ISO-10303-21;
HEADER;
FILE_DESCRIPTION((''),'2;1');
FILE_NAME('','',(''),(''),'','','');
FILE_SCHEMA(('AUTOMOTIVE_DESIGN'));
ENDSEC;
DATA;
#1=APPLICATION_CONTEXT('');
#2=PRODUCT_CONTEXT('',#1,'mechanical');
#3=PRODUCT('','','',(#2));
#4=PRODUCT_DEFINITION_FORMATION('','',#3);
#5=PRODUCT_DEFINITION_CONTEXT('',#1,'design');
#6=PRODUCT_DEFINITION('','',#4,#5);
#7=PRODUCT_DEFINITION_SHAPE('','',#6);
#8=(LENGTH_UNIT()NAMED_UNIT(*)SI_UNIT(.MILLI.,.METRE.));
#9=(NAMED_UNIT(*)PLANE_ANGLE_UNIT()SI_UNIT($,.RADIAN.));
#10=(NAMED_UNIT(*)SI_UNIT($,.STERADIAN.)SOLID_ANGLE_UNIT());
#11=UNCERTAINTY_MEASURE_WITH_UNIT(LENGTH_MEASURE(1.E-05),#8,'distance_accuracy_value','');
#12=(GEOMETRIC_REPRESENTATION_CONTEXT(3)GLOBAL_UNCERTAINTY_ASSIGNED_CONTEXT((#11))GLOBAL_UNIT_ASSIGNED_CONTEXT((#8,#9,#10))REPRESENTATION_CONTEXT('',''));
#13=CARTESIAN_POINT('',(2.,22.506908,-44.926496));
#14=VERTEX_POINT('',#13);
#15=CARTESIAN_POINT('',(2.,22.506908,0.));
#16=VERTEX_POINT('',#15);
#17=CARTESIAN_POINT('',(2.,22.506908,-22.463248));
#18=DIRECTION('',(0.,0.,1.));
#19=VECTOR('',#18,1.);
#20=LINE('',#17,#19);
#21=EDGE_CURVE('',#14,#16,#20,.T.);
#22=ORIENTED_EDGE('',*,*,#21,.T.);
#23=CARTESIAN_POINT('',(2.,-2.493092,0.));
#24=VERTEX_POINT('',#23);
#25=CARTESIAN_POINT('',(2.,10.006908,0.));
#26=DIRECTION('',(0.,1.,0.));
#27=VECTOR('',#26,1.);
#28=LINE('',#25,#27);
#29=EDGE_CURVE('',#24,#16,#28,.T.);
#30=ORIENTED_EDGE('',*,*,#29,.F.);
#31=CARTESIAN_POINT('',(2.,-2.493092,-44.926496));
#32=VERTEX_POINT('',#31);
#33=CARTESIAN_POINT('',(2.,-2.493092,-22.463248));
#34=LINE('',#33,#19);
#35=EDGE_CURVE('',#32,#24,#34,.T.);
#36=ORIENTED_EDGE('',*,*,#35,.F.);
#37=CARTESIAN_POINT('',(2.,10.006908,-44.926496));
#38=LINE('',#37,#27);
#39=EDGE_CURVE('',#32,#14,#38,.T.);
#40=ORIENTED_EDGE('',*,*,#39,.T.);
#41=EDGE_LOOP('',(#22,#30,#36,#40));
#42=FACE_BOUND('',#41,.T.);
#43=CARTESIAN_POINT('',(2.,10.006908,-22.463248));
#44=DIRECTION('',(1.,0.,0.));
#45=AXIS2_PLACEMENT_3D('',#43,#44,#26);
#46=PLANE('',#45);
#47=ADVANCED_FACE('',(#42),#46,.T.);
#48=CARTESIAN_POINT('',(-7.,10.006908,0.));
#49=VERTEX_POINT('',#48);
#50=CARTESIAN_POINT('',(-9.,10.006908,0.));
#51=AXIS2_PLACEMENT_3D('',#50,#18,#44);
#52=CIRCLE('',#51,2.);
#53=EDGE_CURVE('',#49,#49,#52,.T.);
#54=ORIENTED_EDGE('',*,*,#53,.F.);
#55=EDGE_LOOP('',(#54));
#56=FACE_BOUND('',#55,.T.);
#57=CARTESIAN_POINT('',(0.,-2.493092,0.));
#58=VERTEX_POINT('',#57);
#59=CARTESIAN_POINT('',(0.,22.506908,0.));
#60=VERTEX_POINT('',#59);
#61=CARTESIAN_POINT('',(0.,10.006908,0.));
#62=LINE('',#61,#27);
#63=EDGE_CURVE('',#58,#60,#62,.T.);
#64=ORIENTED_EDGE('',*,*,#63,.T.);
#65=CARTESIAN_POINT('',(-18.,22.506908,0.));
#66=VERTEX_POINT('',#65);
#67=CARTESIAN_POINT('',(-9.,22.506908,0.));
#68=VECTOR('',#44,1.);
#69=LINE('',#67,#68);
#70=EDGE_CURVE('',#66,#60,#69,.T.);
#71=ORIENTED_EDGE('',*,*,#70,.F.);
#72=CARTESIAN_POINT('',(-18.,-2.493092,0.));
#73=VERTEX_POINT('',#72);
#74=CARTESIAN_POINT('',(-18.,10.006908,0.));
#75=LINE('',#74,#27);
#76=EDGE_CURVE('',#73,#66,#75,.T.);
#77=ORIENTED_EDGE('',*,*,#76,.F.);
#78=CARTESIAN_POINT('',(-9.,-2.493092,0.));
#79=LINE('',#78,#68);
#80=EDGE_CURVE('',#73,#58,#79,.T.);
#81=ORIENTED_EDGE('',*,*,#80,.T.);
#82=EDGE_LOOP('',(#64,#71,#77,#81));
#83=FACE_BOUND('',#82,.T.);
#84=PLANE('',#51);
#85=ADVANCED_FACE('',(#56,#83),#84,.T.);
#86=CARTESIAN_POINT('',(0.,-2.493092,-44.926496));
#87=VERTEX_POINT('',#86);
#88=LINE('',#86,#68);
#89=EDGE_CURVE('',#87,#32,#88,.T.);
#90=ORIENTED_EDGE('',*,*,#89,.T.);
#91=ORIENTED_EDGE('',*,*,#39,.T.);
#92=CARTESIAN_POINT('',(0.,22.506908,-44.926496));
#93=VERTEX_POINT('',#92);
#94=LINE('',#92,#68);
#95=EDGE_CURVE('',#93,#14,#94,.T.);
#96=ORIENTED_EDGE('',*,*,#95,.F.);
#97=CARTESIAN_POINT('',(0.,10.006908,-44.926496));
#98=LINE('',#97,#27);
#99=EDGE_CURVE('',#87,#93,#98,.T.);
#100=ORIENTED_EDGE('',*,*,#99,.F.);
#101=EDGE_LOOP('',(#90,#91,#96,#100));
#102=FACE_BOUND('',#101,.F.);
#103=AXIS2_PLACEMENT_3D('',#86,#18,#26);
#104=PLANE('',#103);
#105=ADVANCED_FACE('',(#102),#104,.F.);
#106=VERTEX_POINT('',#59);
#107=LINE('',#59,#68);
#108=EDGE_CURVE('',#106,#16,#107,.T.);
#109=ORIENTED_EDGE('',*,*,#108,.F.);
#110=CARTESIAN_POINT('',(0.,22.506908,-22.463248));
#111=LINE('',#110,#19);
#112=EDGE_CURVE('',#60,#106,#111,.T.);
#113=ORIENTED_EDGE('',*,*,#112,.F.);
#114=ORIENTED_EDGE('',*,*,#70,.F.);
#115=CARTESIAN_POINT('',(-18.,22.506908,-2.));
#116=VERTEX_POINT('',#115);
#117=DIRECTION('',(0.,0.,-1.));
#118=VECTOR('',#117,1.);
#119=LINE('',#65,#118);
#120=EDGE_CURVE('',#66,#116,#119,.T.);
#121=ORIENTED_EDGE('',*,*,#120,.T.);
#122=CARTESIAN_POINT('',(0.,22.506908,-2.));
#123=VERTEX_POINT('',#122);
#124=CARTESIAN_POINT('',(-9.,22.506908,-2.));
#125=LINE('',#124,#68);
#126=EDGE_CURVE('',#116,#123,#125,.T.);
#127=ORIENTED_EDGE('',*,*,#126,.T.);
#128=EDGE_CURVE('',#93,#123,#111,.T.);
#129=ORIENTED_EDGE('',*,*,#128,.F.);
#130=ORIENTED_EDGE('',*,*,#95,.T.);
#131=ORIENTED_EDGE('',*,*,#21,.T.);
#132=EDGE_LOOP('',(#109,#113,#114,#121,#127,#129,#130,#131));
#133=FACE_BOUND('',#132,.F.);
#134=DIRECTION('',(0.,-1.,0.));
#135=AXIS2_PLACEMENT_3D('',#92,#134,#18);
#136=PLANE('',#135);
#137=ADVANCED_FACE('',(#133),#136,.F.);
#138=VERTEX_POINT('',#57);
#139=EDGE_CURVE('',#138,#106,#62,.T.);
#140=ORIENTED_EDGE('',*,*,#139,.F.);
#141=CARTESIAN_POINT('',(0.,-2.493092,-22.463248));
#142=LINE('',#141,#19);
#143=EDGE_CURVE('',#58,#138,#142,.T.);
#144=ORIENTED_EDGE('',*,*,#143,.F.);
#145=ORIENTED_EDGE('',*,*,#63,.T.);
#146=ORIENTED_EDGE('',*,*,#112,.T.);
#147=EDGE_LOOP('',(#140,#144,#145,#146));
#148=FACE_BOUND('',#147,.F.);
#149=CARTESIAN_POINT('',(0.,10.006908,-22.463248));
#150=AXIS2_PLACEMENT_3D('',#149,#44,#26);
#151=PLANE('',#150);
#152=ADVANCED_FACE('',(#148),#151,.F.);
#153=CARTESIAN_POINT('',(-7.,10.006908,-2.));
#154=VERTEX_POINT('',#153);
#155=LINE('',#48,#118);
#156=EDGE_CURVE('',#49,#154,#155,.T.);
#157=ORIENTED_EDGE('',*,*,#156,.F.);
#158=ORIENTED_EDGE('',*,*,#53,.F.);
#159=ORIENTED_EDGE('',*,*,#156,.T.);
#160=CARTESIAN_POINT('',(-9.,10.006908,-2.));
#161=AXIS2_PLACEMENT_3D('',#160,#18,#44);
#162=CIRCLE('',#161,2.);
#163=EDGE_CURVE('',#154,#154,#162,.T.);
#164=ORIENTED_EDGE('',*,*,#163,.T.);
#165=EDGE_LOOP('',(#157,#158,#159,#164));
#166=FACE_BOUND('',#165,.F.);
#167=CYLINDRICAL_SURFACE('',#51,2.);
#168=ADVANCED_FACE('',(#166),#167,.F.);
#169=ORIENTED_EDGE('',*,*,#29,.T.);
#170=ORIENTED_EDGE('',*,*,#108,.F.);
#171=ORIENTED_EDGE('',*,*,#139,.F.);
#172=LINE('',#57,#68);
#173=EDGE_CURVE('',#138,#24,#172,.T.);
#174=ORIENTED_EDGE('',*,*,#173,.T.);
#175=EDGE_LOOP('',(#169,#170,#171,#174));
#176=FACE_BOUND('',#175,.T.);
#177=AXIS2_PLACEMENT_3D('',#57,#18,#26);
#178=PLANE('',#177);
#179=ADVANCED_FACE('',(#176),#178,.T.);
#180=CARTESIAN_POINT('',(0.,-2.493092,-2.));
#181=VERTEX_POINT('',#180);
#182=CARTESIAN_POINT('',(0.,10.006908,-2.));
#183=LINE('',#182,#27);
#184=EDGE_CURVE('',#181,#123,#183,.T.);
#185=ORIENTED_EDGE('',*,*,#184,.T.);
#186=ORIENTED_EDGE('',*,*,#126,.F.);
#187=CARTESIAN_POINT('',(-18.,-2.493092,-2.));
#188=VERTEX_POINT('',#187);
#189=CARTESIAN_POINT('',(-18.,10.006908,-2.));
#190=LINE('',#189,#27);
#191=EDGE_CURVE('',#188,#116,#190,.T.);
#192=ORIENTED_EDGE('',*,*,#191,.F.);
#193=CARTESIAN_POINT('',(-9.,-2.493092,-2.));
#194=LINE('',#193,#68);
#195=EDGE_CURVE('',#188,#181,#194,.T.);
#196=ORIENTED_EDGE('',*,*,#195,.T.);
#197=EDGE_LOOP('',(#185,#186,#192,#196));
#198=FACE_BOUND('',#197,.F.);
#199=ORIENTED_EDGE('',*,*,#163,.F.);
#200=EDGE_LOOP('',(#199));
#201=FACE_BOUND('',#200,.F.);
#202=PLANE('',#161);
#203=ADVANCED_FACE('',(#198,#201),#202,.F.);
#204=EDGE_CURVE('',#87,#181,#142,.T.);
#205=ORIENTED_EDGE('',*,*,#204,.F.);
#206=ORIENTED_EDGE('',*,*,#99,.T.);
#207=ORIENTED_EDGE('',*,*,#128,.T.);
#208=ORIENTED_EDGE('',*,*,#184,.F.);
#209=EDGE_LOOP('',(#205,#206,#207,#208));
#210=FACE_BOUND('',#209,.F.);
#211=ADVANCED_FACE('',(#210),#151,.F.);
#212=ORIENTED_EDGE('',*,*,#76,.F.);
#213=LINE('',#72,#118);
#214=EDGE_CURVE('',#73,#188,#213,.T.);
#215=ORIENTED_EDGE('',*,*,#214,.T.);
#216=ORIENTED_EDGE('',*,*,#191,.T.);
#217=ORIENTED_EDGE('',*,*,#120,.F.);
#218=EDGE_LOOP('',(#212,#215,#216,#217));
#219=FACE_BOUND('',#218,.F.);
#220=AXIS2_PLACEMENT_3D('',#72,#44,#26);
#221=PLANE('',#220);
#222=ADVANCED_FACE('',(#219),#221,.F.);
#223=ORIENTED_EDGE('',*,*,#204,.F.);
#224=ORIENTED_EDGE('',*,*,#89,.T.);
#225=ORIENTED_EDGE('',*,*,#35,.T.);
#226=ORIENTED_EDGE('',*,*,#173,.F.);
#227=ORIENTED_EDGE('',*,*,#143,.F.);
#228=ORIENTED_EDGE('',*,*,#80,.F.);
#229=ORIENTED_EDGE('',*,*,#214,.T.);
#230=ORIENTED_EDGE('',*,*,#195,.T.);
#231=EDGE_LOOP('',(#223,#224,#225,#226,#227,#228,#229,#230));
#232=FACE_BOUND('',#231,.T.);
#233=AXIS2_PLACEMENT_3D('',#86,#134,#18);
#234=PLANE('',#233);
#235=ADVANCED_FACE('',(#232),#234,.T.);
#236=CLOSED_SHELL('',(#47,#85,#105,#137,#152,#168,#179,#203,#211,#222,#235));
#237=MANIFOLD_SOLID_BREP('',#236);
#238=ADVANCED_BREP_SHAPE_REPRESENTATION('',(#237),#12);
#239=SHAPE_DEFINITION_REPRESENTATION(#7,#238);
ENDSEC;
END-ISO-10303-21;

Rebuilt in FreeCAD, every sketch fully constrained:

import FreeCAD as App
import Part
import Sketcher

V = App.Vector


def add_polygon(sketch, points):
    """Adds a closed chain of lines whose ends are joined by coincident constraints."""
    first, n = sketch.GeometryCount, len(points)
    for a, b in zip(points, points[1:] + points[:1]):
        sketch.addGeometry(Part.LineSegment(App.Vector(*a, 0), App.Vector(*b, 0)), False)
    for i in range(n):
        sketch.addConstraint(Sketcher.Constraint("Coincident", first + i, 2, first + (i + 1) % n, 1))

doc = App.newDocument("Part")
body = doc.addObject("PartDesign::Body", "Body")

sketch1 = body.newObject("Sketcher::SketchObject", "Sketch")
sketch1.AttachmentSupport = (doc.getObject("XY_Plane"), [""])
sketch1.MapMode = "FlatFace"
add_polygon(sketch1, [(-18, 22.5), (-18, -2.5), (0, -2.5), (0, 22.5)])
sketch1.addGeometry(Part.Circle(V(-9, 10, 0), V(0, 0, 1), 2), False)
sketch1.addConstraint([
    Sketcher.Constraint("Vertical", 0),
    Sketcher.Constraint("Horizontal", 1),
    Sketcher.Constraint("Vertical", 2),
    Sketcher.Constraint("Horizontal", 3),
    Sketcher.Constraint("PointOnObject", 1, 2, -2),
    Sketcher.Constraint("Diameter", 4, 4.0),
    Sketcher.Constraint("DistanceX", 1, 1, 1, 2, 18.0),
    Sketcher.Constraint("DistanceY", 0, 2, 0, 1, 25.0),
    Sketcher.Constraint("DistanceX", 4, 3, -1, 1, 9.0),
    Sketcher.Constraint("DistanceY", 0, 2, 4, 3, 12.5),
    Sketcher.Constraint("DistanceY", 0, 2, -1, 1, 2.493092),
])
pad1 = body.newObject("PartDesign::Pad", "Pad")
pad1.Profile = sketch1
pad1.Length = 2
pad1.Reversed = True

sketch2 = body.newObject("Sketcher::SketchObject", "Sketch001")
sketch2.AttachmentSupport = (doc.getObject("YZ_Plane"), [""])
sketch2.MapMode = "FlatFace"
add_polygon(sketch2, [(-2, 0), (-2, -45), (23, -45), (23, 0)])
sketch2.addConstraint([
    Sketcher.Constraint("Vertical", 0),
    Sketcher.Constraint("Horizontal", 1),
    Sketcher.Constraint("Vertical", 2),
    Sketcher.Constraint("Horizontal", 3),
    Sketcher.Constraint("PointOnObject", 2, 2, -1),
    Sketcher.Constraint("DistanceX", 1, 1, 1, 2, 25.0),
    Sketcher.Constraint("DistanceY", 0, 2, 0, 1, 44.926497),
    Sketcher.Constraint("DistanceX", 0, 2, -1, 1, 2.493092),
])
pad2 = body.newObject("PartDesign::Pad", "Pad001")
pad2.Profile = sketch2
pad2.Length = 2

doc.recompute()
